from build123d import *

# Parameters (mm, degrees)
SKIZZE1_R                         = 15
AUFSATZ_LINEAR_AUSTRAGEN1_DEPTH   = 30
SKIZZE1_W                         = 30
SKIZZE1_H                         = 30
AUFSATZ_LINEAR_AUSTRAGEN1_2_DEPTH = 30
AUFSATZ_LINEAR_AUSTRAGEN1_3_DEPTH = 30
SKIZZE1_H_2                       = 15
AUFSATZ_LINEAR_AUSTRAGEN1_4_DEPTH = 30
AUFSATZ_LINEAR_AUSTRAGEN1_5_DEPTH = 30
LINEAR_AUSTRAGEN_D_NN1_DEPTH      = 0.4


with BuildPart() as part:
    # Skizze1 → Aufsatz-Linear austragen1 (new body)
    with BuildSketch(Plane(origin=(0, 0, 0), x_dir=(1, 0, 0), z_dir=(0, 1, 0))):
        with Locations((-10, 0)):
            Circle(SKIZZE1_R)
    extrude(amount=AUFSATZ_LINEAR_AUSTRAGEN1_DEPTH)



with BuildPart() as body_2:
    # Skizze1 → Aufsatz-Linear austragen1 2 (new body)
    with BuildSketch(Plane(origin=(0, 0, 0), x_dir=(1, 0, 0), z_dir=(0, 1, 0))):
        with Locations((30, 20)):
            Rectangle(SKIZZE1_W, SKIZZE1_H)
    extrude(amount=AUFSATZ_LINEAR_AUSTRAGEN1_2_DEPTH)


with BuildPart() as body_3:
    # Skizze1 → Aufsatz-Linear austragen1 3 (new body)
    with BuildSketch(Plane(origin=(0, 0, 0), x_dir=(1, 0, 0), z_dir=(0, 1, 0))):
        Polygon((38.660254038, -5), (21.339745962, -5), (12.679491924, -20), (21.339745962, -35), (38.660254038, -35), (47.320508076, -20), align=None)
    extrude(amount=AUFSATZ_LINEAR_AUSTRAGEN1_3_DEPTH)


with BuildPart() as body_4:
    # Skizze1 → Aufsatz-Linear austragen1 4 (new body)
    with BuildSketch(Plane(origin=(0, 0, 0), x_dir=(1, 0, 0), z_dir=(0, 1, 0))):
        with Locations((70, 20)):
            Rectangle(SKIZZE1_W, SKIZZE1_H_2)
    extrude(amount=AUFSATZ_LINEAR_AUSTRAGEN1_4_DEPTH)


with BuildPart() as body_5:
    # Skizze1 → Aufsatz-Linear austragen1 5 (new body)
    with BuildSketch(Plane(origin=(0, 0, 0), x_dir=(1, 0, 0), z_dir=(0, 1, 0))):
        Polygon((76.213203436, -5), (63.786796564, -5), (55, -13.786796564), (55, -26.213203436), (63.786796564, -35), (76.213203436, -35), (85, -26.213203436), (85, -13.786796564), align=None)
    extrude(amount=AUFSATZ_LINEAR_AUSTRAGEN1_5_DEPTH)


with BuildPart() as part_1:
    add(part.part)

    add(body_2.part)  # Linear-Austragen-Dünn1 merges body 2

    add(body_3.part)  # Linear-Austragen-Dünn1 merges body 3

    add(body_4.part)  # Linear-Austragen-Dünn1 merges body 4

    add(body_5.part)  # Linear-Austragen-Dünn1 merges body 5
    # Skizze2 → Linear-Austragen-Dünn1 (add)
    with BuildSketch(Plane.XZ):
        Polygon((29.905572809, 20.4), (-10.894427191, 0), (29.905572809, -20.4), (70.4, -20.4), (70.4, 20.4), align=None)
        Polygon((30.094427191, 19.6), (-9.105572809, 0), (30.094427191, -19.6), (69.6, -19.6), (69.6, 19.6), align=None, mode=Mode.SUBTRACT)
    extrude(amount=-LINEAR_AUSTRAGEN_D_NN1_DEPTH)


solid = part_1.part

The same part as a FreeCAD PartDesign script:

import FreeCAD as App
import Part
import Sketcher
from FreeCAD import Vector
Q = App.Units.Quantity


def add_polygon(sketch, points):
    """Adds a closed chain of lines whose ends are joined by coincident constraints."""
    first, n = sketch.GeometryCount, len(points)
    for a, b in zip(points, points[1:] + points[:1]):
        sketch.addGeometry(Part.LineSegment(App.Vector(*a, 0), App.Vector(*b, 0)), False)
    for i in range(n):
        sketch.addConstraint(Sketcher.Constraint("Coincident", first + i, 2, first + (i + 1) % n, 1))

doc = App.newDocument("Part")
body = doc.addObject("PartDesign::Body", "Body")

sketch1 = body.newObject("Sketcher::SketchObject", "Sketch")
sketch1.AttachmentSupport = (doc.getObject("XZ_Plane"), [""])
sketch1.MapMode = "FlatFace"
sketch1.addGeometry(Part.Circle(Vector(-10, 0, 0), Vector(0, 0, 1), 15), False)
sketch1.addConstraint(Sketcher.Constraint("PointOnObject", 0, 3, -1))
sketch1.addConstraint(Sketcher.Constraint("Diameter", 0, 30.0))
sketch1.addConstraint(Sketcher.Constraint("DistanceX", 0, 3, -1, 1, 10.0))
pad1 = body.newObject("PartDesign::Pad", "Pad")
pad1.Profile = sketch1
pad1.Length = 30
pad1.Reversed = True
body2 = doc.addObject("PartDesign::Body", "Body001")

sketch2 = body2.newObject("Sketcher::SketchObject", "Sketch001")
sketch2.AttachmentSupport = (doc.getObject("XZ_Plane001"), [""])
sketch2.MapMode = "FlatFace"
add_polygon(sketch2, [(15, -35), (15, -5), (45, -5), (45, -35)])
sketch2.addConstraint(Sketcher.Constraint("Vertical", 0))
sketch2.addConstraint(Sketcher.Constraint("Horizontal", 1))
sketch2.addConstraint(Sketcher.Constraint("Vertical", 2))
sketch2.addConstraint(Sketcher.Constraint("Horizontal", 3))
sketch2.addConstraint(Sketcher.Constraint("Equal", 3, 0))
sketch2.addConstraint(Sketcher.Constraint("DistanceX", 1, 1, 1, 2, 30.0))
sketch2.addConstraint(Sketcher.Constraint("DistanceX", -1, 1, 0, 2, 15.0))
sketch2.addConstraint(Sketcher.Constraint("DistanceY", 0, 2, -1, 1, 5.0))
pad2 = body2.newObject("PartDesign::Pad", "Pad001")
pad2.Profile = sketch2
pad2.Length = 30
pad2.Reversed = True
body3 = doc.addObject("PartDesign::Body", "Body002")

sketch3 = body3.newObject("Sketcher::SketchObject", "Sketch002")
sketch3.AttachmentSupport = (doc.getObject("XZ_Plane002"), [""])
sketch3.MapMode = "FlatFace"
add_polygon(sketch3, [(39, 5), (21, 5), (13, 20), (21, 35), (39, 35), (47, 20)])
sketch3.addConstraint(Sketcher.Constraint("Horizontal", 0))
sketch3.addConstraint(Sketcher.Constraint("Horizontal", 3))
sketch3.addConstraint(Sketcher.Constraint("Parallel", 1, 4))
sketch3.addConstraint(Sketcher.Constraint("Parallel", 2, 5))
sketch3.addConstraint(Sketcher.Constraint("Horizontal", 1, 2, 4, 2))
sketch3.addConstraint(Sketcher.Constraint("Vertical", 0, 2, 2, 2))
sketch3.addConstraint(Sketcher.Constraint("Vertical", 3, 2, 5, 2))
sketch3.addConstraint(Sketcher.Constraint("Angle", 1, Q("120 deg")))
sketch3.addConstraint(Sketcher.Constraint("DistanceY", -1, 1, 0, 2, 5.0))
sketch3.addConstraint(Sketcher.Constraint("DistanceY", -1, 1, 1, 2, 20.0))
sketch3.addConstraint(Sketcher.Constraint("DistanceX", 0, 2, 0, 1, 17.320508))
sketch3.addConstraint(Sketcher.Constraint("DistanceX", -1, 1, 1, 2, 12.679492))
pad3 = body3.newObject("PartDesign::Pad", "Pad002")
pad3.Profile = sketch3
pad3.Length = 30
pad3.Reversed = True
body4 = doc.addObject("PartDesign::Body", "Body003")

sketch4 = body4.newObject("Sketcher::SketchObject", "Sketch003")
sketch4.AttachmentSupport = (doc.getObject("XZ_Plane003"), [""])
sketch4.MapMode = "FlatFace"
add_polygon(sketch4, [(55, -28), (55, -12), (85, -12), (85, -28)])
sketch4.addConstraint(Sketcher.Constraint("Vertical", 0))
sketch4.addConstraint(Sketcher.Constraint("Horizontal", 1))
sketch4.addConstraint(Sketcher.Constraint("Vertical", 2))
sketch4.addConstraint(Sketcher.Constraint("Horizontal", 3))
sketch4.addConstraint(Sketcher.Constraint("DistanceX", 1, 1, 1, 2, 30.0))
sketch4.addConstraint(Sketcher.Constraint("DistanceY", 0, 1, 0, 2, 15.0))
sketch4.addConstraint(Sketcher.Constraint("DistanceX", -1, 1, 0, 2, 55.0))
sketch4.addConstraint(Sketcher.Constraint("DistanceY", 0, 2, -1, 1, 12.5))
pad4 = body4.newObject("PartDesign::Pad", "Pad003")
pad4.Profile = sketch4
pad4.Length = 30
pad4.Reversed = True
body5 = doc.addObject("PartDesign::Body", "Body004")

sketch5 = body5.newObject("Sketcher::SketchObject", "Sketch004")
sketch5.AttachmentSupport = (doc.getObject("XZ_Plane004"), [""])
sketch5.MapMode = "FlatFace"
add_polygon(sketch5, [(76, 5), (64, 5), (55, 14), (55, 26), (64, 35), (76, 35), (85, 26), (85, 14)])
sketch5.addConstraint(Sketcher.Constraint("Horizontal", 0))
sketch5.addConstraint(Sketcher.Constraint("Vertical", 2))
sketch5.addConstraint(Sketcher.Constraint("Horizontal", 4))
sketch5.addConstraint(Sketcher.Constraint("Vertical", 6))
sketch5.addConstraint(Sketcher.Constraint("Perpendicular", 1, 3))
sketch5.addConstraint(Sketcher.Constraint("Perpendicular", 3, 5))
sketch5.addConstraint(Sketcher.Constraint("Perpendicular", 5, 7))
sketch5.addConstraint(Sketcher.Constraint("Horizontal", 2, 2, 5, 2))
sketch5.addConstraint(Sketcher.Constraint("Horizontal", 1, 2, 6, 2))
sketch5.addConstraint(Sketcher.Constraint("Vertical", 0, 2, 3, 2))
sketch5.addConstraint(Sketcher.Constraint("Vertical", 4, 2, 7, 2))
sketch5.addConstraint(Sketcher.Constraint("Equal", 4, 2))
sketch5.addConstraint(Sketcher.Constraint("DistanceY", -1, 1, 0, 2, 5.0))
sketch5.addConstraint(Sketcher.Constraint("DistanceX", -1, 1, 1, 2, 55.0))
sketch5.addConstraint(Sketcher.Constraint("DistanceY", -1, 1, 3, 2, 35.0))
sketch5.addConstraint(Sketcher.Constraint("DistanceX", 0, 2, 0, 1, 12.426407))
pad5 = body5.newObject("PartDesign::Pad", "Pad004")
pad5.Profile = sketch5
pad5.Length = 30
pad5.Reversed = True
body.AllowCompound = True
doc.recompute()

boolean = body.newObject("PartDesign::Boolean", "Boolean")
boolean.Type = "Fuse"
boolean.addObjects([body2])
doc.recompute()

boolean2 = body.newObject("PartDesign::Boolean", "Boolean001")
boolean2.Type = "Fuse"
boolean2.addObjects([body3])
doc.recompute()

boolean3 = body.newObject("PartDesign::Boolean", "Boolean002")
boolean3.Type = "Fuse"
boolean3.addObjects([body4])
doc.recompute()

boolean4 = body.newObject("PartDesign::Boolean", "Boolean003")
boolean4.Type = "Fuse"
boolean4.addObjects([body5])

sketch6 = body.newObject("Sketcher::SketchObject", "Sketch005")
sketch6.AttachmentSupport = (doc.getObject("XZ_Plane"), [""])
sketch6.MapMode = "FlatFace"
add_polygon(sketch6, [(30, 20), (-11, 0), (30, -20), (70, -20), (70, 20)])
add_polygon(sketch6, [(-9, 0), (30, 20), (70, 20), (70, -20), (30, -20)])
sketch6.addConstraint(Sketcher.Constraint("Horizontal", 2))
sketch6.addConstraint(Sketcher.Constraint("Vertical", 3))
sketch6.addConstraint(Sketcher.Constraint("Horizontal", 4))
sketch6.addConstraint(Sketcher.Constraint("Horizontal", 6))
sketch6.addConstraint(Sketcher.Constraint("Vertical", 7))
sketch6.addConstraint(Sketcher.Constraint("Horizontal", 8))
sketch6.addConstraint(Sketcher.Constraint("Symmetric", 1, 2, 4, 2, -1))
sketch6.addConstraint(Sketcher.Constraint("Symmetric", 5, 2, 8, 2, -1))
sketch6.addConstraint(Sketcher.Constraint("PointOnObject", 0, 2, -1))
sketch6.addConstraint(Sketcher.Constraint("PointOnObject", 9, 2, -1))
sketch6.addConstraint(Sketcher.Constraint("Parallel", 0, 5))
sketch6.addConstraint(Sketcher.Constraint("DistanceY", 3, 1, 3, 2, 40.8))
sketch6.addConstraint(Sketcher.Constraint("DistanceY", 7, 2, 7, 1, 39.2))
sketch6.addConstraint(Sketcher.Constraint("DistanceX", -1, 1, 2, 2, 70.4))
sketch6.addConstraint(Sketcher.Constraint("DistanceX", -1, 1, 6, 2, 69.6))
sketch6.addConstraint(Sketcher.Constraint("DistanceX", 0, 2, 1, 2, 40.8))
sketch6.addConstraint(Sketcher.Constraint("DistanceX", 2, 1, 2, 2, 40.494427))
sketch6.addConstraint(Sketcher.Constraint("DistanceX", 6, 1, 6, 2, 39.505573))
pad6 = body.newObject("PartDesign::Pad", "Pad005")
pad6.Profile = sketch6
pad6.Length = 0.4
pad6.Reversed = True

doc.recompute()
